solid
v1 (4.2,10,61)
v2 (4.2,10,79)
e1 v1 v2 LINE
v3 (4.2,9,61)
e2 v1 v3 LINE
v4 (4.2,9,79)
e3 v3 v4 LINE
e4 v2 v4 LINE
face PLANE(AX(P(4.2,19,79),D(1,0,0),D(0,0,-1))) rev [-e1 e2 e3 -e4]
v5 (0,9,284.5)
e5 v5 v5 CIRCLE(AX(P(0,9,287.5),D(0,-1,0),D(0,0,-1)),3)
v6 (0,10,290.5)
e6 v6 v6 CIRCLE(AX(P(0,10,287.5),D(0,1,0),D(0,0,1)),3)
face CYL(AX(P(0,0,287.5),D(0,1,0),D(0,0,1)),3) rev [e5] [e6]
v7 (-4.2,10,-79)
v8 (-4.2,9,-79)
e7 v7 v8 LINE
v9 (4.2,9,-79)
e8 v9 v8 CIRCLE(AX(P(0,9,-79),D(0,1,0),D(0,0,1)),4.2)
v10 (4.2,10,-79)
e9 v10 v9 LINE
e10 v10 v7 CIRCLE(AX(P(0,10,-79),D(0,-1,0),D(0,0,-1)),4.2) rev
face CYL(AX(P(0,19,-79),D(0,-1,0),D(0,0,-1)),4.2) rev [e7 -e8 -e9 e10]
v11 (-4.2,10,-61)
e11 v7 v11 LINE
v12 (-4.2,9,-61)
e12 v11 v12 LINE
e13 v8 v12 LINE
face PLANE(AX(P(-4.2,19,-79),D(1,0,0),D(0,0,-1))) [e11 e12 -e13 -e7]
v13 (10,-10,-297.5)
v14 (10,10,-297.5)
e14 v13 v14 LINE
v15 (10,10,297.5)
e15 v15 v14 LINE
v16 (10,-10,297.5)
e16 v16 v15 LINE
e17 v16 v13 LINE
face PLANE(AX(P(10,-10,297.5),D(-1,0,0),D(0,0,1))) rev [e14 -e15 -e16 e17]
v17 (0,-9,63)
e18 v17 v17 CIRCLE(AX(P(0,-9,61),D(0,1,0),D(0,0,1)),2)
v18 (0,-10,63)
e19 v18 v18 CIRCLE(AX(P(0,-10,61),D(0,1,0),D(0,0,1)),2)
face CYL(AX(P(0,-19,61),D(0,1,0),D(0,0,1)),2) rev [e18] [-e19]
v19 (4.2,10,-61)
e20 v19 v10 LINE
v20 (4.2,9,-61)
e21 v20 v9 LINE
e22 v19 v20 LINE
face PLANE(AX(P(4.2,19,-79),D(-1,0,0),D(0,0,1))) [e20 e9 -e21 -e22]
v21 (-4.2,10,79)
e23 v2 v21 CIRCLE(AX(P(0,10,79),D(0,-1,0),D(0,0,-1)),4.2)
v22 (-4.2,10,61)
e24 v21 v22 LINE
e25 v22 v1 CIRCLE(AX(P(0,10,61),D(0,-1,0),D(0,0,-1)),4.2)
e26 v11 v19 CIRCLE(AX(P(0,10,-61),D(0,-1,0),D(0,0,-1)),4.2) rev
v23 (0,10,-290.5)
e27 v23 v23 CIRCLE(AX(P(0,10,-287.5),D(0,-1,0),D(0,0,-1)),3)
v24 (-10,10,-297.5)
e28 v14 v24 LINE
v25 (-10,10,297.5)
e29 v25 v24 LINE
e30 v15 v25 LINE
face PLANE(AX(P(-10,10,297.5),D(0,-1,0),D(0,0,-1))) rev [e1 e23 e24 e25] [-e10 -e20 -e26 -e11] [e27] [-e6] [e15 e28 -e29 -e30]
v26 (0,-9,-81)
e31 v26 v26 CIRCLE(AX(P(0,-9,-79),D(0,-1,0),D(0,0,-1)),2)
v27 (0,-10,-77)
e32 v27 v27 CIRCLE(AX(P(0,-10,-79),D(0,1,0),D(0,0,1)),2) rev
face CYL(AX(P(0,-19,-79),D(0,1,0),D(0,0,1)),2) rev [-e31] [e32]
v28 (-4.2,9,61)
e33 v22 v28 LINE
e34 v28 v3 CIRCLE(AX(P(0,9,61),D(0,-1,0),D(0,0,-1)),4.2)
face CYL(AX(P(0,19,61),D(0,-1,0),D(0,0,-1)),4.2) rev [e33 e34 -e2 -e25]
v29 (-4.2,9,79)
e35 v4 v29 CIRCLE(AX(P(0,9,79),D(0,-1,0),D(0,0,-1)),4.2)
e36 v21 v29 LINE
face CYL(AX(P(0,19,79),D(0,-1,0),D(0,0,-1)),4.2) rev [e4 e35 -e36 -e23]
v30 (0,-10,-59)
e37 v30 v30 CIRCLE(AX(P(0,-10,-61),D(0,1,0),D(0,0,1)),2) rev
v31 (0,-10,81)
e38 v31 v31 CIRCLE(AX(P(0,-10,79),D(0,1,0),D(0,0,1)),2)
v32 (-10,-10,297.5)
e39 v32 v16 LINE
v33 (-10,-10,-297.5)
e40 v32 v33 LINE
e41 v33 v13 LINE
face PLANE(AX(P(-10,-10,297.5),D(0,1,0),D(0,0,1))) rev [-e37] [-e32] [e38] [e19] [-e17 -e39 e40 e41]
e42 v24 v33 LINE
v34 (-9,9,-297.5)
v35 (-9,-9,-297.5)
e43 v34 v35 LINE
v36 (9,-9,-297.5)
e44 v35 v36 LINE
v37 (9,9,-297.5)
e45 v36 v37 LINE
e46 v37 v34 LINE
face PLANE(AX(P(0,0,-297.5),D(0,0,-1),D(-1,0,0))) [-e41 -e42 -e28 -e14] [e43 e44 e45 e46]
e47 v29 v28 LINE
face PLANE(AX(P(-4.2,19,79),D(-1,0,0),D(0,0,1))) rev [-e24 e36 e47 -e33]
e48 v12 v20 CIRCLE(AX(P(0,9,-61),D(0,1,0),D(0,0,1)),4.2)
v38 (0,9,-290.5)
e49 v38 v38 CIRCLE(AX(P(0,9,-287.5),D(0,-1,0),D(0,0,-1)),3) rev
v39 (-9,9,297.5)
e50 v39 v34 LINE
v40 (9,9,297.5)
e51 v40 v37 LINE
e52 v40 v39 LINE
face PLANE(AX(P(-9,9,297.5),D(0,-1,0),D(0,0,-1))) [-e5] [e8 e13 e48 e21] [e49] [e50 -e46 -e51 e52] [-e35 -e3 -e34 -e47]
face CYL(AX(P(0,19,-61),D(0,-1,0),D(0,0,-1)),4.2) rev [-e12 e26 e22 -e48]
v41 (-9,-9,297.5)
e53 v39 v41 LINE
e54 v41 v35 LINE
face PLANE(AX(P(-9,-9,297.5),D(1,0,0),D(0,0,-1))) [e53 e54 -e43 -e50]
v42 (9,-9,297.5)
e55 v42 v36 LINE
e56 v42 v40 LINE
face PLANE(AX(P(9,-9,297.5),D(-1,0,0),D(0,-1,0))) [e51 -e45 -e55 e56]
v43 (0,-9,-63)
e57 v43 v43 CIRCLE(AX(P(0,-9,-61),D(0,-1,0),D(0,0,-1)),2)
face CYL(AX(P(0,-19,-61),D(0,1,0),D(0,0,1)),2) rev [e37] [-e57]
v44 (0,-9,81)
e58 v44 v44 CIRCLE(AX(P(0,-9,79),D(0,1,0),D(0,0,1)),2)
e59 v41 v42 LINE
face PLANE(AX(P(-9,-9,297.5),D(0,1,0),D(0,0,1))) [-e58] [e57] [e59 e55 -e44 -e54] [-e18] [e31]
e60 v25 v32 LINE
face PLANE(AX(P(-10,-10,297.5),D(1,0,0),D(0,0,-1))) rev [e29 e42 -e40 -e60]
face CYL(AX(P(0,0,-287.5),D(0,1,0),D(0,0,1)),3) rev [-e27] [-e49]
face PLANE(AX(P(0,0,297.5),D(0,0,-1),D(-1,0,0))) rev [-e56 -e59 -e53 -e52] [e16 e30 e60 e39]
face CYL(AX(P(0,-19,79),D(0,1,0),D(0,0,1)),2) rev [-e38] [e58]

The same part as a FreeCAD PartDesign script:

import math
import FreeCAD as App
import Part
import Sketcher

V = App.Vector

doc = App.newDocument("Part")
params = doc.addObject("Spreadsheet::Sheet", "Params")
for row, (alias, value) in enumerate([
    ("sketch1_width", "20 mm"),
    ("sketch1_width2", "18 mm"),
    ("pad1_length", "595 mm"),
    ("sketch2_diameter", "6 mm"),
    ("pocket1_length", "10 mm"),
    ("sketch3_diameter", "4 mm"),
    ("pocket2_length", "10 mm"),
    ("sketch4_radius", "4.2 mm"),
    ("sketch4_height", "18 mm"),
    ("pocket3_length", "10 mm"),
], start=1):
    params.set(f"A{row}", alias)
    params.set(f"B{row}", "=" + value)
    params.setAlias(f"B{row}", alias)

body = doc.addObject("PartDesign::Body", "Body")

sketch1 = body.newObject("Sketcher::SketchObject", "Sketch")
sketch1.AttachmentSupport = (doc.getObject("XY_Plane"), [""])
sketch1.MapMode = "FlatFace"
sketch1.addGeometry([
    Part.LineSegment(V(-10, 10, 0), V(-10, -10, 0)),
    Part.LineSegment(V(-10, -10, 0), V(10, -10, 0)),
    Part.LineSegment(V(10, -10, 0), V(10, 10, 0)),
    Part.LineSegment(V(10, 10, 0), V(-10, 10, 0)),
    Part.LineSegment(V(9, -9, 0), V(-9, -9, 0)),
    Part.LineSegment(V(-9, -9, 0), V(-9, 9, 0)),
    Part.LineSegment(V(-9, 9, 0), V(9, 9, 0)),
    Part.LineSegment(V(9, 9, 0), V(9, -9, 0)),
], False)
sketch1.addConstraint([
    Sketcher.Constraint("Coincident", 0, 2, 1, 1),
    Sketcher.Constraint("Coincident", 1, 2, 2, 1),
    Sketcher.Constraint("Coincident", 2, 2, 3, 1),
    Sketcher.Constraint("Coincident", 3, 2, 0, 1),
    Sketcher.Constraint("Coincident", 4, 2, 5, 1),
    Sketcher.Constraint("Coincident", 5, 2, 6, 1),
    Sketcher.Constraint("Coincident", 6, 2, 7, 1),
    Sketcher.Constraint("Coincident", 7, 2, 4, 1),
    Sketcher.Constraint("Vertical", 0),
    Sketcher.Constraint("Horizontal", 1),
    Sketcher.Constraint("Vertical", 2),
    Sketcher.Constraint("Horizontal", 3),
    Sketcher.Constraint("Horizontal", 4),
    Sketcher.Constraint("Vertical", 5),
    Sketcher.Constraint("Horizontal", 6),
    Sketcher.Constraint("Vertical", 7),
    Sketcher.Constraint("Symmetric", 0, 2, 2, 2, -1, 1),
    Sketcher.Constraint("Symmetric", 4, 2, 6, 2, -1, 1),
    Sketcher.Constraint("Equal", 3, 0),
    Sketcher.Constraint("Equal", 6, 5),
    Sketcher.Constraint("DistanceX", 1, 1, 1, 2, 20.0),
    Sketcher.Constraint("DistanceX", 4, 2, 4, 1, 18.0),
])
sketch1.setExpression("Constraints[20]", "Params.sketch1_width")
sketch1.setExpression("Constraints[21]", "Params.sketch1_width2")
pad1 = body.newObject("PartDesign::Pad", "Pad")
pad1.Profile = sketch1
pad1.setExpression("Length", "Params.pad1_length")
pad1.Midplane = True

sketch2 = body.newObject("Sketcher::SketchObject", "Sketch001")
sketch2.AttachmentSupport = (doc.getObject("XZ_Plane"), [""])
sketch2.MapMode = "FlatFace"
sketch2.AttachmentOffset = App.Placement(V(0, 0, -10), App.Rotation())
sketch2.addGeometry(Part.Circle(V(0, 287.5, 0), V(0, 0, 1), 3), False)
sketch2.addConstraint([
    Sketcher.Constraint("PointOnObject", 0, 3, -2),
    Sketcher.Constraint("Diameter", 0, 6.0),
    Sketcher.Constraint("DistanceY", -1, 1, 0, 3, 287.5),
])
sketch2.setExpression("Constraints[1]", "Params.sketch2_diameter")
pocket1 = body.newObject("PartDesign::Pocket", "Pocket")
pocket1.Profile = sketch2
pocket1.setExpression("Length", "Params.pocket1_length")
pocket1.Reversed = True
doc.recompute()

mirrored = body.newObject("PartDesign::Mirrored", "Mirrored")
mirrored.Originals = [pocket1]
mirrored.MirrorPlane = (doc.getObject("XY_Plane"), [""])
body.Tip = mirrored

sketch3 = body.newObject("Sketcher::SketchObject", "Sketch002")
sketch3.AttachmentSupport = (doc.getObject("XZ_Plane"), [""])
sketch3.MapMode = "FlatFace"
sketch3.AttachmentOffset = App.Placement(V(0, 0, 9), App.Rotation())
sketch3.addGeometry([
    Part.Circle(V(0, 79, 0), V(0, 0, 1), 2),
    Part.Circle(V(0, 61, 0), V(0, 0, 1), 2),
], False)
sketch3.addConstraint([
    Sketcher.Constraint("Equal", 0, 1),
    Sketcher.Constraint("PointOnObject", 0, 3, -2),
    Sketcher.Constraint("PointOnObject", 1, 3, -2),
    Sketcher.Constraint("Diameter", 0, 4.0),
    Sketcher.Constraint("DistanceY", -1, 1, 0, 3, 79.0),
    Sketcher.Constraint("DistanceY", -1, 1, 1, 3, 61.0),
])
sketch3.setExpression("Constraints[3]", "Params.sketch3_diameter")
pocket2 = body.newObject("PartDesign::Pocket", "Pocket001")
pocket2.Profile = sketch3
pocket2.setExpression("Length", "Params.pocket2_length")
pocket2.Reversed = True

sketch4 = body.newObject("Sketcher::SketchObject", "Sketch003")
sketch4.AttachmentSupport = (doc.getObject("XZ_Plane"), [""])
sketch4.MapMode = "FlatFace"
sketch4.AttachmentOffset = App.Placement(V(0, 0, -9), App.Rotation())
sketch4.addGeometry([
    Part.LineSegment(V(4.2, 61, 0), V(4.2, 79, 0)),
    Part.ArcOfCircle(Part.Circle(V(0, 79, 0), V(0, 0, 1), 4.2), math.radians(0), math.radians(180)),
    Part.LineSegment(V(-4.2, 79, 0), V(-4.2, 61, 0)),
    Part.ArcOfCircle(Part.Circle(V(0, 61, 0), V(0, 0, 1), 4.2), math.radians(180), math.radians(360)),
], False)
sketch4.addConstraint([
    Sketcher.Constraint("Tangent", 0, 2, 1, 1),
    Sketcher.Constraint("Tangent", 1, 2, 2, 1),
    Sketcher.Constraint("Tangent", 2, 2, 3, 1),
    Sketcher.Constraint("Tangent", 3, 2, 0, 1),
    Sketcher.Constraint("Vertical", 0),
    Sketcher.Constraint("Vertical", 2),
    Sketcher.Constraint("PointOnObject", 1, 3, -2),
    Sketcher.Constraint("Radius", 1, 4.2),
    Sketcher.Constraint("DistanceY", 0, 1, 0, 2, 18.0),
    Sketcher.Constraint("DistanceY", -1, 1, 1, 3, 79.0),
])
sketch4.setExpression("Constraints[7]", "Params.sketch4_radius")
sketch4.setExpression("Constraints[8]", "Params.sketch4_height")
pocket3 = body.newObject("PartDesign::Pocket", "Pocket002")
pocket3.Profile = sketch4
pocket3.setExpression("Length", "Params.pocket3_length")
doc.recompute()

mirrored2 = body.newObject("PartDesign::Mirrored", "Mirrored001")
mirrored2.Originals = [pocket2, pocket3]
mirrored2.MirrorPlane = (doc.getObject("XY_Plane"), [""])
body.Tip = mirrored2

doc.recompute()
